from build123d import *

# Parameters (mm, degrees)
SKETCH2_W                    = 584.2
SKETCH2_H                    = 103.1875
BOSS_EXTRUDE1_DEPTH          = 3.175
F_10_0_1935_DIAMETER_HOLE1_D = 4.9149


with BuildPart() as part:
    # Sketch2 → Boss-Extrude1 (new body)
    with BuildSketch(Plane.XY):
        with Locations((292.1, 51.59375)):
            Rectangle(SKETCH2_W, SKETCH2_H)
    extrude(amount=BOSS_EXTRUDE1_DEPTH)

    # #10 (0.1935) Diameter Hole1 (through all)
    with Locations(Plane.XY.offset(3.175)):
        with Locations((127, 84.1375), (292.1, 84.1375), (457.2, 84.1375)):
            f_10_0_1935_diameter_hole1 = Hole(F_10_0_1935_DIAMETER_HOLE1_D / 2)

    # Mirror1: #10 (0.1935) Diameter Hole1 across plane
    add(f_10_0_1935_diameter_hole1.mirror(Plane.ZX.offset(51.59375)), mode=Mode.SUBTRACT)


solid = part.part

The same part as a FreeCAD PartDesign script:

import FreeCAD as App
import Part
import Sketcher

V = App.Vector
Q = App.Units.Quantity


def add_polygon(sketch, points):
    """Adds a closed chain of lines whose ends are joined by coincident constraints."""
    first, n = sketch.GeometryCount, len(points)
    for a, b in zip(points, points[1:] + points[:1]):
        sketch.addGeometry(Part.LineSegment(App.Vector(*a, 0), App.Vector(*b, 0)), False)
    for i in range(n):
        sketch.addConstraint(Sketcher.Constraint("Coincident", first + i, 2, first + (i + 1) % n, 1))

doc = App.newDocument("Part")
body = doc.addObject("PartDesign::Body", "Body")

# Sketch on XY plane
sketch1 = body.newObject("Sketcher::SketchObject", "Sketch")
sketch1.AttachmentSupport = (doc.getObject("XY_Plane"), [""])
sketch1.MapMode = "FlatFace"
add_polygon(sketch1, [(0, 103), (0, 0), (584, 0), (584, 103)])  # lines 0-3
sketch1.addConstraint([
    Sketcher.Constraint("Vertical", 0),
    Sketcher.Constraint("Horizontal", 1),
    Sketcher.Constraint("Vertical", 2),
    Sketcher.Constraint("Horizontal", 3),
    Sketcher.Constraint("Coincident", 0, 2, -1, 1),
    Sketcher.Constraint("DistanceX", 1, 1, 1, 2, Q("23 in")),
    Sketcher.Constraint("DistanceY", 0, 2, 0, 1, Q("4.0625 in")),
])
pad1 = body.newObject("PartDesign::Pad", "Pad")
pad1.Profile = sketch1
pad1.Length = Q("0.125 in")

# Sketch on XY plane
sketch2 = body.newObject("Sketcher::SketchObject", "Sketch001")
sketch2.AttachmentSupport = (doc.getObject("XY_Plane"), [""])
sketch2.MapMode = "FlatFace"
sketch2.AttachmentOffset = App.Placement(V(0, 0, 0.125 * 25.4), App.Rotation())
sketch2.addGeometry([
    Part.Circle(V(127, 84.1, 0), V(0, 0, 1), 2.5),
    Part.Circle(V(292.1, 84.1, 0), V(0, 0, 1), 2.5),
    Part.Circle(V(457.2, 84.1, 0), V(0, 0, 1), 2.5),
], False)
sketch2.addConstraint([
    Sketcher.Constraint("Equal", 0, 1),
    Sketcher.Constraint("Equal", 1, 2),
    Sketcher.Constraint("Horizontal", 0, 3, 1, 3),
    Sketcher.Constraint("Horizontal", 1, 3, 2, 3),
    Sketcher.Constraint("DistanceX", -1, 1, 0, 3, Q("5 in")),
    Sketcher.Constraint("DistanceX", -1, 1, 2, 3, Q("18 in")),
    Sketcher.Constraint("Diameter", 0, Q("0.1935 in")),
    Sketcher.Constraint("DistanceX", -1, 1, 1, 3, Q("11.5 in")),
    Sketcher.Constraint("DistanceY", -1, 1, 0, 3, Q("3.3125 in")),
])
doc.recompute()
hole = body.newObject("PartDesign::Hole", "Hole")
hole.Profile = sketch2
hole.ThreadType = "None"
hole.Diameter = Q("0.1935 in")
hole.DepthType = "ThroughAll"
doc.recompute()

datumplane = body.newObject("PartDesign::Plane", "DatumPlane")
datumplane.AttachmentSupport = (doc.getObject("XZ_Plane"), [""])
datumplane.MapMode = "FlatFace"
datumplane.AttachmentOffset = App.Placement(V(0, 0, -2.03125 * 25.4), App.Rotation())
mirrored = body.newObject("PartDesign::Mirrored", "Mirrored")
mirrored.Originals = [hole]
mirrored.MirrorPlane = (datumplane, [""])
body.Tip = mirrored

doc.recompute()
